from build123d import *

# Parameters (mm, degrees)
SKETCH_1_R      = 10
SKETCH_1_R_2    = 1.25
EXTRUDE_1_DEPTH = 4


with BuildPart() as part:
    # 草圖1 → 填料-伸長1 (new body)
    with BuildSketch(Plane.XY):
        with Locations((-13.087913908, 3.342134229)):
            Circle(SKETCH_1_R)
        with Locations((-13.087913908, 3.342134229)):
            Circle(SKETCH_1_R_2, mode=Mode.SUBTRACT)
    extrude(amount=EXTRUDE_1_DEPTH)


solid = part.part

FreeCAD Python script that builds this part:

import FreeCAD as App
import Part
import Sketcher

doc = App.newDocument("Part")
body = doc.addObject("PartDesign::Body", "Body")

# Sketch on XY plane
sketch1 = body.newObject("Sketcher::SketchObject", "Sketch")
sketch1.AttachmentSupport = (doc.getObject("XY_Plane"), [""])
sketch1.MapMode = "FlatFace"
sketch1.addGeometry(Part.Circle(App.Vector(-13.087914, 3.342134, 0), App.Vector(0, 0, 1), 10), False)
sketch1.addGeometry(Part.Circle(App.Vector(-13.087914, 3.342134, 0), App.Vector(0, 0, 1), 1.25), False)
sketch1.addConstraint(Sketcher.Constraint("Coincident", 1, 3, 0, 3))
sketch1.addConstraint(Sketcher.Constraint("Diameter", 0, 20.0))
sketch1.addConstraint(Sketcher.Constraint("Diameter", 1, 2.5))
sketch1.addConstraint(Sketcher.Constraint("DistanceX", 0, 3, -1, 1, 13.087914))
sketch1.addConstraint(Sketcher.Constraint("DistanceY", -1, 1, 0, 3, 3.342134))
pad1 = body.newObject("PartDesign::Pad", "Pad")
pad1.Profile = sketch1
pad1.Length = 4

doc.recompute()
